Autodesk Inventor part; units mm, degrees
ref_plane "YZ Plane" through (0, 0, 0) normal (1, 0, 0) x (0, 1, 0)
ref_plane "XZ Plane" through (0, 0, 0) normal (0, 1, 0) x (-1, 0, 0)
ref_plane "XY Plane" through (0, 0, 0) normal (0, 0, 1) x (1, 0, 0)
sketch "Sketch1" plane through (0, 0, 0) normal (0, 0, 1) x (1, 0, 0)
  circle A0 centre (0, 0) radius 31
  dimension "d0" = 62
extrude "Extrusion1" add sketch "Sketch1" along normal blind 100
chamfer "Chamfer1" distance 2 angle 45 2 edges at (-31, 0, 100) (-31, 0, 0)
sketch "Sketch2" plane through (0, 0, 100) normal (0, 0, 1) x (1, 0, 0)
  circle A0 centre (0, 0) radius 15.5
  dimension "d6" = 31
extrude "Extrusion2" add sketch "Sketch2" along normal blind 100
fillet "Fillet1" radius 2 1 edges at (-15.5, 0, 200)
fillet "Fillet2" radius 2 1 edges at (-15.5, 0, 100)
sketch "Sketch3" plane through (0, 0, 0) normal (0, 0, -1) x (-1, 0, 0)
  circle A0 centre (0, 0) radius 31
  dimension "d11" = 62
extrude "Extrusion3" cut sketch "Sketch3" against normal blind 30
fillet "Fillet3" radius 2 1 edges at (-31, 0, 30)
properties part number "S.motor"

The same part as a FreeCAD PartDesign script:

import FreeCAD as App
import Part
import Sketcher


def edges_at(feature, points):
    """Names of the edges that pass closest to the given points."""
    edges = feature.Shape.Edges
    near = lambda p: min(range(len(edges)), key=lambda i: edges[i].distToShape(Part.Vertex(*p))[0])
    return sorted({f"Edge{near(p) + 1}" for p in points})

doc = App.newDocument("Part")
params = doc.addObject("Spreadsheet::Sheet", "Params")
for row, (alias, value) in enumerate([
    ("sketch1_diameter", "62 mm"),
    ("pad1_length", "100 mm"),
    ("chamfer_size", "2 mm"),
    ("sketch2_diameter", "31 mm"),
    ("pad2_length", "100 mm"),
    ("fillet_radius", "2 mm"),
    ("fillet2_radius", "2 mm"),
    ("sketch3_diameter", "62 mm"),
    ("pocket1_length", "30 mm"),
    ("fillet3_radius", "2 mm"),
], start=1):
    params.set(f"A{row}", alias)
    params.set(f"B{row}", "=" + value)
    params.setAlias(f"B{row}", alias)

body = doc.addObject("PartDesign::Body", "Body")

# Sketch on XY plane
sketch1 = body.newObject("Sketcher::SketchObject", "Sketch")
sketch1.AttachmentSupport = (doc.getObject("XY_Plane"), [""])
sketch1.MapMode = "FlatFace"
sketch1.addGeometry(Part.Circle(App.Vector(0, 0, 0), App.Vector(0, 0, 1), 31), False)
sketch1.addConstraint(Sketcher.Constraint("Coincident", 0, 3, -1, 1))
sketch1.addConstraint(Sketcher.Constraint("Diameter", 0, 62.0))
sketch1.setExpression("Constraints[1]", "Params.sketch1_diameter")
pad1 = body.newObject("PartDesign::Pad", "Pad")
pad1.Profile = sketch1
pad1.setExpression("Length", "Params.pad1_length")
doc.recompute()

chamfer = body.newObject("PartDesign::Chamfer", "Chamfer")
chamfer.Base = (pad1, edges_at(pad1, [(-31, 0, 100), (-31, 0, 0)]))
chamfer.setExpression("Size", "Params.chamfer_size")

# Sketch on XY plane
sketch2 = body.newObject("Sketcher::SketchObject", "Sketch001")
sketch2.AttachmentSupport = (doc.getObject("XY_Plane"), [""])
sketch2.MapMode = "FlatFace"
sketch2.AttachmentOffset = App.Placement(App.Vector(0, 0, 100), App.Rotation())
sketch2.addGeometry(Part.Circle(App.Vector(0, 0, 0), App.Vector(0, 0, 1), 16), False)
sketch2.addConstraint(Sketcher.Constraint("Coincident", 0, 3, -1, 1))
sketch2.addConstraint(Sketcher.Constraint("Diameter", 0, 31.0))
sketch2.setExpression("Constraints[1]", "Params.sketch2_diameter")
pad2 = body.newObject("PartDesign::Pad", "Pad001")
pad2.Profile = sketch2
pad2.setExpression("Length", "Params.pad2_length")
doc.recompute()

fillet = body.newObject("PartDesign::Fillet", "Fillet")
fillet.Base = (pad2, edges_at(pad2, [(-15.5, 0, 200)]))
fillet.setExpression("Radius", "Params.fillet_radius")
doc.recompute()

fillet2 = body.newObject("PartDesign::Fillet", "Fillet001")
fillet2.Base = (fillet, edges_at(fillet, [(-15.5, 0, 100)]))
fillet2.setExpression("Radius", "Params.fillet2_radius")

# Sketch on XY plane
sketch3 = body.newObject("Sketcher::SketchObject", "Sketch002")
sketch3.AttachmentSupport = (doc.getObject("XY_Plane"), [""])
sketch3.MapMode = "FlatFace"
sketch3.addGeometry(Part.Circle(App.Vector(0, 0, 0), App.Vector(0, 0, 1), 31), False)
sketch3.addConstraint(Sketcher.Constraint("Coincident", 0, 3, -1, 1))
sketch3.addConstraint(Sketcher.Constraint("Diameter", 0, 62.0))
sketch3.setExpression("Constraints[1]", "Params.sketch3_diameter")
pocket1 = body.newObject("PartDesign::Pocket", "Pocket")
pocket1.Profile = sketch3
pocket1.setExpression("Length", "Params.pocket1_length")
pocket1.Reversed = True
doc.recompute()

fillet3 = body.newObject("PartDesign::Fillet", "Fillet002")
fillet3.Base = (pocket1, edges_at(pocket1, [(-31, 0, 30)]))
fillet3.setExpression("Radius", "Params.fillet3_radius")

doc.recompute()
